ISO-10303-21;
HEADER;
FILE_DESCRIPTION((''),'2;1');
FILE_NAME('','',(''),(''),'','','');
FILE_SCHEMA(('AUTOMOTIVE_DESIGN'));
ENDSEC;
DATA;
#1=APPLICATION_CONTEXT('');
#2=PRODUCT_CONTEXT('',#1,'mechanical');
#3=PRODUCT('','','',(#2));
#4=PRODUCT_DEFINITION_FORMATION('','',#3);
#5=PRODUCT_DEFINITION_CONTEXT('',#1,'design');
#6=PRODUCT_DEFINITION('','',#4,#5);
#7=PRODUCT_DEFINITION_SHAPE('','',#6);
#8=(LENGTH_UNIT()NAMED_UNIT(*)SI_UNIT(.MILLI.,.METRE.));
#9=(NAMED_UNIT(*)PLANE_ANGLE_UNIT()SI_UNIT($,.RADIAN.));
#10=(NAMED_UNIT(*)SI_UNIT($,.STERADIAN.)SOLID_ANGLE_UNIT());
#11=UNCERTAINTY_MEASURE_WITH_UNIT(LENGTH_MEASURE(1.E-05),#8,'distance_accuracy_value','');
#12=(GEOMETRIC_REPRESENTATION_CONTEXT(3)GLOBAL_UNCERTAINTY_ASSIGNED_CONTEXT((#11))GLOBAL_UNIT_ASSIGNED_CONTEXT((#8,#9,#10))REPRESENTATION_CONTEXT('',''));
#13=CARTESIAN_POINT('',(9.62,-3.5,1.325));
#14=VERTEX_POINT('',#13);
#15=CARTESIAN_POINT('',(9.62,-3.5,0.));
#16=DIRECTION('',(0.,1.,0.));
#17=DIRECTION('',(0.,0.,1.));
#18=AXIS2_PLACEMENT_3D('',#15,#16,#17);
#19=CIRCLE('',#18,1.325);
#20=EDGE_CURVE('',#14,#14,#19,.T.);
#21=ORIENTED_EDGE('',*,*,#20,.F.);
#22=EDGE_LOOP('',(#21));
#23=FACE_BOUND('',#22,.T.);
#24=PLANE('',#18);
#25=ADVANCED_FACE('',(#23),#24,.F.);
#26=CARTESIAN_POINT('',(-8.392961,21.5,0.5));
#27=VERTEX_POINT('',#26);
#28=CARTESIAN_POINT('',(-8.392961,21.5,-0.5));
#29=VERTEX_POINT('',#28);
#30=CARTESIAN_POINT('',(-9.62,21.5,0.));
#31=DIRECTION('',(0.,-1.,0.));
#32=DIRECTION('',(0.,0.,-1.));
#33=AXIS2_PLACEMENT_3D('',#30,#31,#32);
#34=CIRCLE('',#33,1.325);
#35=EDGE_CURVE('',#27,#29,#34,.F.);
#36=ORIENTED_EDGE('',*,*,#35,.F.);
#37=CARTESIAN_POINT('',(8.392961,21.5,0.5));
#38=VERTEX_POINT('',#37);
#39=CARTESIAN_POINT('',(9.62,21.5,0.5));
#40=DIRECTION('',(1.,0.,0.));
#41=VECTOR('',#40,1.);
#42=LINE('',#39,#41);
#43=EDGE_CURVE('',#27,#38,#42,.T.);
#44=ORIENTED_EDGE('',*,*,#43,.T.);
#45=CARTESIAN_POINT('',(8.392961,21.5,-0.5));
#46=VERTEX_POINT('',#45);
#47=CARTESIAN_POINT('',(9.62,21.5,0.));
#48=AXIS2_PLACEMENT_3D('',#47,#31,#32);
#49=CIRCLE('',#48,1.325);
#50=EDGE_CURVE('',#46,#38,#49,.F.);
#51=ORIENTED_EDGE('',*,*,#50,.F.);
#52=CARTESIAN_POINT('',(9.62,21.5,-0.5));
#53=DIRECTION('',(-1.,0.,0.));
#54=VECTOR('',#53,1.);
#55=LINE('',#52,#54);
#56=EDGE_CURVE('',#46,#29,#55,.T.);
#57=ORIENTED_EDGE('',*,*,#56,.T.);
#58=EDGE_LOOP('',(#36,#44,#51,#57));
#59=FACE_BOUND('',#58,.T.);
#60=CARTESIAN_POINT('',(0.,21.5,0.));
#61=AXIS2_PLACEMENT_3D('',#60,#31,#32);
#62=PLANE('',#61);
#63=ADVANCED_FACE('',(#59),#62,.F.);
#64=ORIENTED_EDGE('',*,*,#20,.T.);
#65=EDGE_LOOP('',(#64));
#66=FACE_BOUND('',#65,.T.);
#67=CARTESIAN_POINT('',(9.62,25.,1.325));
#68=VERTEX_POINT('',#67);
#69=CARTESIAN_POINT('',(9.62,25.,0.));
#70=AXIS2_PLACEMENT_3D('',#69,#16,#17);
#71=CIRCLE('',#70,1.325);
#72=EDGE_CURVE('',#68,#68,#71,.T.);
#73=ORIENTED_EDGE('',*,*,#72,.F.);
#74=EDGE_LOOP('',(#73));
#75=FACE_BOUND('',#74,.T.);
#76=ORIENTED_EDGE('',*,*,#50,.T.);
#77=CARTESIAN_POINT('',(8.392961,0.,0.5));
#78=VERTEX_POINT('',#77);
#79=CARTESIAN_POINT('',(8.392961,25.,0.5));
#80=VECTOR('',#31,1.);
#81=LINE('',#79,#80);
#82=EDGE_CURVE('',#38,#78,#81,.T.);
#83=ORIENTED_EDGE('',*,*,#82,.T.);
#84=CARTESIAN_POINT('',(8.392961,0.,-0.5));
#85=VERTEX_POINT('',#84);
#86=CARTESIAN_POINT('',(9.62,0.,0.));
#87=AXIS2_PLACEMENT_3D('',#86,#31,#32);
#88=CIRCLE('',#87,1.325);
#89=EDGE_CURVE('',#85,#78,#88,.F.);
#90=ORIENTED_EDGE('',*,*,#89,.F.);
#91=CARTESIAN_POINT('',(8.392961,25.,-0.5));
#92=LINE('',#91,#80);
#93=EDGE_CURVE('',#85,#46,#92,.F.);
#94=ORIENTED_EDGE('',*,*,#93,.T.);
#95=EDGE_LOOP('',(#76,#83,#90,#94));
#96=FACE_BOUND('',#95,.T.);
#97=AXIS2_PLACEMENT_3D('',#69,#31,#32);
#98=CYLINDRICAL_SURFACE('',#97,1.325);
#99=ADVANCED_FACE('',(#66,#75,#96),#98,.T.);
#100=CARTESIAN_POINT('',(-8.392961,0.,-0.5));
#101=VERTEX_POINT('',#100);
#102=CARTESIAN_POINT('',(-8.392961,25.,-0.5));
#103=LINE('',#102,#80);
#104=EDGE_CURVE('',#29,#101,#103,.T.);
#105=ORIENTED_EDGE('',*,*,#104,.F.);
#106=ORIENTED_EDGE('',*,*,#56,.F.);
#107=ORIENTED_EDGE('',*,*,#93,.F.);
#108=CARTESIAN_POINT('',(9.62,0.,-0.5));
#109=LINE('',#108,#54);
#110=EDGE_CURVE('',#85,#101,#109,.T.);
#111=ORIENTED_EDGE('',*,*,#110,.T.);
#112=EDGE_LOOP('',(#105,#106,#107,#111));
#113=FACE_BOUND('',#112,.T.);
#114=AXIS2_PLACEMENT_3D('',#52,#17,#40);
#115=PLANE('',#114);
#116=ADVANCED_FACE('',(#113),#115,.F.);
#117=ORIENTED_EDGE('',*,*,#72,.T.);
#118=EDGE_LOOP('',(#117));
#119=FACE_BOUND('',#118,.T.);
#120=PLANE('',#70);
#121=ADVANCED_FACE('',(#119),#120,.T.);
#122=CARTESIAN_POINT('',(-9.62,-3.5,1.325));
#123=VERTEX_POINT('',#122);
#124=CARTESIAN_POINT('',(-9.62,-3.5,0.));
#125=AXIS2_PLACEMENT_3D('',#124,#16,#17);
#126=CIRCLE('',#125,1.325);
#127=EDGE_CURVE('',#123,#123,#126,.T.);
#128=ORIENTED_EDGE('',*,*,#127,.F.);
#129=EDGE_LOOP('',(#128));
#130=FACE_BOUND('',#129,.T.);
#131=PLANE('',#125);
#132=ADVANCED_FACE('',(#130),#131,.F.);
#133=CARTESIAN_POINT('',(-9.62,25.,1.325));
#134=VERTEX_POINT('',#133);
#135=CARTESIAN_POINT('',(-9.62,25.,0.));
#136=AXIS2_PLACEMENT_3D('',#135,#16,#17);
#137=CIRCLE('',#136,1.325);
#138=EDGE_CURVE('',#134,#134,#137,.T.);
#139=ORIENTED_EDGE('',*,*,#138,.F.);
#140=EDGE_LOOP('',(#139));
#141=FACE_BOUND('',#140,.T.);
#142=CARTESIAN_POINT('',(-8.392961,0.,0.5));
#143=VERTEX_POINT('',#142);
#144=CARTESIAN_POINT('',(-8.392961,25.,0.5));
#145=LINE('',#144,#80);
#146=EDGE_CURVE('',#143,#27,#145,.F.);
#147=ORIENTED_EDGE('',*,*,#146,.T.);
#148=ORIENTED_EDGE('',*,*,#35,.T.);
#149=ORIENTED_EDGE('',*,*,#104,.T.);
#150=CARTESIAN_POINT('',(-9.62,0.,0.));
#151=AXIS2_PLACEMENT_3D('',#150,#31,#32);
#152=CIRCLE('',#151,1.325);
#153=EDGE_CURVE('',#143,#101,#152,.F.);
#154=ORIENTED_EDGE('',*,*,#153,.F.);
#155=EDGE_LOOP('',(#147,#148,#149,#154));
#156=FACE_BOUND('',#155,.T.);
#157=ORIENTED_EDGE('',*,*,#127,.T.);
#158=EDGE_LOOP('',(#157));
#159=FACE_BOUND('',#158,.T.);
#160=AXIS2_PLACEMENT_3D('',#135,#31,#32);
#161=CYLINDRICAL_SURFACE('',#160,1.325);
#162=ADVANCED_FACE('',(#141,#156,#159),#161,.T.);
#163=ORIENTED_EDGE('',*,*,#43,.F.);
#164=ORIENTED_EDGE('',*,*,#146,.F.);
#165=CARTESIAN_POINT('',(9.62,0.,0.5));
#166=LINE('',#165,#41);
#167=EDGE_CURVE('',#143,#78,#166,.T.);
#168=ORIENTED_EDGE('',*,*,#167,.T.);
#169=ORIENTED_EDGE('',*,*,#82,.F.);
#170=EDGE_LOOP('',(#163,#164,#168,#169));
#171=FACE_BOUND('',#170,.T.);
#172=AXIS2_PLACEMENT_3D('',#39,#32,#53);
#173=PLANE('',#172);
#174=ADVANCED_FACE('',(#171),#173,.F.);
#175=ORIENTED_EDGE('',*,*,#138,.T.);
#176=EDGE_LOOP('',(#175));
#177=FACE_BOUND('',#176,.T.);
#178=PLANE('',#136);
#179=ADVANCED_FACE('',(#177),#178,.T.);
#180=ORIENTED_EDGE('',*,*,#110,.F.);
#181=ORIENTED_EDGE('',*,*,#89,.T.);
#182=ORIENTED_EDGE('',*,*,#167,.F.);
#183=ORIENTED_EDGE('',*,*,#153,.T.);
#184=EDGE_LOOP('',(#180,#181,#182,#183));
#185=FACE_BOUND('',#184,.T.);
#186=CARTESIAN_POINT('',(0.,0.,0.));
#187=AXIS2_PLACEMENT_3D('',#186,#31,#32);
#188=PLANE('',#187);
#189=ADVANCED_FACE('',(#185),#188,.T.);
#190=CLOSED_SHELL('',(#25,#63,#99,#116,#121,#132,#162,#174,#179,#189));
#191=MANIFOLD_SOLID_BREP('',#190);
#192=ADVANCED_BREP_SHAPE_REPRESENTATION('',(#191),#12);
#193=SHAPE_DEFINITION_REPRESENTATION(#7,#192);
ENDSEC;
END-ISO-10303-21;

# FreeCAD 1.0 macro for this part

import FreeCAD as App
import Part
import Sketcher

V = App.Vector

doc = App.newDocument("Part")
body = doc.addObject("PartDesign::Body", "Body")

sketch1 = body.newObject("Sketcher::SketchObject", "Sketch")
sketch1.AttachmentSupport = (doc.getObject("XZ_Plane"), [""])
sketch1.MapMode = "FlatFace"
sketch1.addGeometry(Part.LineSegment(V(-9.6, -0.5, 0), V(-9.6, 0.5, 0)), False)
sketch1.addGeometry(Part.LineSegment(V(-9.6, 0.5, 0), V(9.6, 0.5, 0)), False)
sketch1.addGeometry(Part.LineSegment(V(9.6, 0.5, 0), V(9.6, -0.5, 0)), False)
sketch1.addGeometry(Part.LineSegment(V(9.6, -0.5, 0), V(-9.6, -0.5, 0)), False)
sketch1.addConstraint(Sketcher.Constraint("Coincident", 0, 2, 1, 1))
sketch1.addConstraint(Sketcher.Constraint("Coincident", 1, 2, 2, 1))
sketch1.addConstraint(Sketcher.Constraint("Coincident", 2, 2, 3, 1))
sketch1.addConstraint(Sketcher.Constraint("Coincident", 3, 2, 0, 1))
sketch1.addConstraint(Sketcher.Constraint("Vertical", 0))
sketch1.addConstraint(Sketcher.Constraint("Horizontal", 1))
sketch1.addConstraint(Sketcher.Constraint("Vertical", 2))
sketch1.addConstraint(Sketcher.Constraint("Horizontal", 3))
sketch1.addConstraint(Sketcher.Constraint("Symmetric", 0, 2, 2, 2, -1, 1))
sketch1.addConstraint(Sketcher.Constraint("DistanceY", 0, 1, 0, 2, 1.0))
sketch1.addConstraint(Sketcher.Constraint("DistanceX", 1, 1, 1, 2, 19.24))
pad1 = body.newObject("PartDesign::Pad", "Pad")
pad1.Profile = sketch1
pad1.Length = 21.5
pad1.Reversed = True

sketch2 = body.newObject("Sketcher::SketchObject", "Sketch001")
sketch2.AttachmentSupport = (doc.getObject("XZ_Plane"), [""])
sketch2.MapMode = "FlatFace"
sketch2.AttachmentOffset = App.Placement(V(0, 0, -10.75), App.Rotation())
sketch2.addGeometry(Part.Circle(V(-9.6, 0, 0), V(0, 0, 1), 1.3), False)
sketch2.addGeometry(Part.Circle(V(9.6, 0, 0), V(0, 0, 1), 1.3), False)
sketch2.addConstraint(Sketcher.Constraint("Equal", 0, 1))
sketch2.addConstraint(Sketcher.Constraint("Symmetric", 0, 3, 1, 3, -1, 1))
sketch2.addConstraint(Sketcher.Constraint("PointOnObject", 0, 3, -1))
sketch2.addConstraint(Sketcher.Constraint("Diameter", 0, 2.65))
sketch2.addConstraint(Sketcher.Constraint("DistanceX", 0, 3, -1, 1, 9.62))
pad2 = body.newObject("PartDesign::Pad", "Pad001")
pad2.Profile = sketch2
pad2.Length = 28.5
pad2.Midplane = True

doc.recompute()
